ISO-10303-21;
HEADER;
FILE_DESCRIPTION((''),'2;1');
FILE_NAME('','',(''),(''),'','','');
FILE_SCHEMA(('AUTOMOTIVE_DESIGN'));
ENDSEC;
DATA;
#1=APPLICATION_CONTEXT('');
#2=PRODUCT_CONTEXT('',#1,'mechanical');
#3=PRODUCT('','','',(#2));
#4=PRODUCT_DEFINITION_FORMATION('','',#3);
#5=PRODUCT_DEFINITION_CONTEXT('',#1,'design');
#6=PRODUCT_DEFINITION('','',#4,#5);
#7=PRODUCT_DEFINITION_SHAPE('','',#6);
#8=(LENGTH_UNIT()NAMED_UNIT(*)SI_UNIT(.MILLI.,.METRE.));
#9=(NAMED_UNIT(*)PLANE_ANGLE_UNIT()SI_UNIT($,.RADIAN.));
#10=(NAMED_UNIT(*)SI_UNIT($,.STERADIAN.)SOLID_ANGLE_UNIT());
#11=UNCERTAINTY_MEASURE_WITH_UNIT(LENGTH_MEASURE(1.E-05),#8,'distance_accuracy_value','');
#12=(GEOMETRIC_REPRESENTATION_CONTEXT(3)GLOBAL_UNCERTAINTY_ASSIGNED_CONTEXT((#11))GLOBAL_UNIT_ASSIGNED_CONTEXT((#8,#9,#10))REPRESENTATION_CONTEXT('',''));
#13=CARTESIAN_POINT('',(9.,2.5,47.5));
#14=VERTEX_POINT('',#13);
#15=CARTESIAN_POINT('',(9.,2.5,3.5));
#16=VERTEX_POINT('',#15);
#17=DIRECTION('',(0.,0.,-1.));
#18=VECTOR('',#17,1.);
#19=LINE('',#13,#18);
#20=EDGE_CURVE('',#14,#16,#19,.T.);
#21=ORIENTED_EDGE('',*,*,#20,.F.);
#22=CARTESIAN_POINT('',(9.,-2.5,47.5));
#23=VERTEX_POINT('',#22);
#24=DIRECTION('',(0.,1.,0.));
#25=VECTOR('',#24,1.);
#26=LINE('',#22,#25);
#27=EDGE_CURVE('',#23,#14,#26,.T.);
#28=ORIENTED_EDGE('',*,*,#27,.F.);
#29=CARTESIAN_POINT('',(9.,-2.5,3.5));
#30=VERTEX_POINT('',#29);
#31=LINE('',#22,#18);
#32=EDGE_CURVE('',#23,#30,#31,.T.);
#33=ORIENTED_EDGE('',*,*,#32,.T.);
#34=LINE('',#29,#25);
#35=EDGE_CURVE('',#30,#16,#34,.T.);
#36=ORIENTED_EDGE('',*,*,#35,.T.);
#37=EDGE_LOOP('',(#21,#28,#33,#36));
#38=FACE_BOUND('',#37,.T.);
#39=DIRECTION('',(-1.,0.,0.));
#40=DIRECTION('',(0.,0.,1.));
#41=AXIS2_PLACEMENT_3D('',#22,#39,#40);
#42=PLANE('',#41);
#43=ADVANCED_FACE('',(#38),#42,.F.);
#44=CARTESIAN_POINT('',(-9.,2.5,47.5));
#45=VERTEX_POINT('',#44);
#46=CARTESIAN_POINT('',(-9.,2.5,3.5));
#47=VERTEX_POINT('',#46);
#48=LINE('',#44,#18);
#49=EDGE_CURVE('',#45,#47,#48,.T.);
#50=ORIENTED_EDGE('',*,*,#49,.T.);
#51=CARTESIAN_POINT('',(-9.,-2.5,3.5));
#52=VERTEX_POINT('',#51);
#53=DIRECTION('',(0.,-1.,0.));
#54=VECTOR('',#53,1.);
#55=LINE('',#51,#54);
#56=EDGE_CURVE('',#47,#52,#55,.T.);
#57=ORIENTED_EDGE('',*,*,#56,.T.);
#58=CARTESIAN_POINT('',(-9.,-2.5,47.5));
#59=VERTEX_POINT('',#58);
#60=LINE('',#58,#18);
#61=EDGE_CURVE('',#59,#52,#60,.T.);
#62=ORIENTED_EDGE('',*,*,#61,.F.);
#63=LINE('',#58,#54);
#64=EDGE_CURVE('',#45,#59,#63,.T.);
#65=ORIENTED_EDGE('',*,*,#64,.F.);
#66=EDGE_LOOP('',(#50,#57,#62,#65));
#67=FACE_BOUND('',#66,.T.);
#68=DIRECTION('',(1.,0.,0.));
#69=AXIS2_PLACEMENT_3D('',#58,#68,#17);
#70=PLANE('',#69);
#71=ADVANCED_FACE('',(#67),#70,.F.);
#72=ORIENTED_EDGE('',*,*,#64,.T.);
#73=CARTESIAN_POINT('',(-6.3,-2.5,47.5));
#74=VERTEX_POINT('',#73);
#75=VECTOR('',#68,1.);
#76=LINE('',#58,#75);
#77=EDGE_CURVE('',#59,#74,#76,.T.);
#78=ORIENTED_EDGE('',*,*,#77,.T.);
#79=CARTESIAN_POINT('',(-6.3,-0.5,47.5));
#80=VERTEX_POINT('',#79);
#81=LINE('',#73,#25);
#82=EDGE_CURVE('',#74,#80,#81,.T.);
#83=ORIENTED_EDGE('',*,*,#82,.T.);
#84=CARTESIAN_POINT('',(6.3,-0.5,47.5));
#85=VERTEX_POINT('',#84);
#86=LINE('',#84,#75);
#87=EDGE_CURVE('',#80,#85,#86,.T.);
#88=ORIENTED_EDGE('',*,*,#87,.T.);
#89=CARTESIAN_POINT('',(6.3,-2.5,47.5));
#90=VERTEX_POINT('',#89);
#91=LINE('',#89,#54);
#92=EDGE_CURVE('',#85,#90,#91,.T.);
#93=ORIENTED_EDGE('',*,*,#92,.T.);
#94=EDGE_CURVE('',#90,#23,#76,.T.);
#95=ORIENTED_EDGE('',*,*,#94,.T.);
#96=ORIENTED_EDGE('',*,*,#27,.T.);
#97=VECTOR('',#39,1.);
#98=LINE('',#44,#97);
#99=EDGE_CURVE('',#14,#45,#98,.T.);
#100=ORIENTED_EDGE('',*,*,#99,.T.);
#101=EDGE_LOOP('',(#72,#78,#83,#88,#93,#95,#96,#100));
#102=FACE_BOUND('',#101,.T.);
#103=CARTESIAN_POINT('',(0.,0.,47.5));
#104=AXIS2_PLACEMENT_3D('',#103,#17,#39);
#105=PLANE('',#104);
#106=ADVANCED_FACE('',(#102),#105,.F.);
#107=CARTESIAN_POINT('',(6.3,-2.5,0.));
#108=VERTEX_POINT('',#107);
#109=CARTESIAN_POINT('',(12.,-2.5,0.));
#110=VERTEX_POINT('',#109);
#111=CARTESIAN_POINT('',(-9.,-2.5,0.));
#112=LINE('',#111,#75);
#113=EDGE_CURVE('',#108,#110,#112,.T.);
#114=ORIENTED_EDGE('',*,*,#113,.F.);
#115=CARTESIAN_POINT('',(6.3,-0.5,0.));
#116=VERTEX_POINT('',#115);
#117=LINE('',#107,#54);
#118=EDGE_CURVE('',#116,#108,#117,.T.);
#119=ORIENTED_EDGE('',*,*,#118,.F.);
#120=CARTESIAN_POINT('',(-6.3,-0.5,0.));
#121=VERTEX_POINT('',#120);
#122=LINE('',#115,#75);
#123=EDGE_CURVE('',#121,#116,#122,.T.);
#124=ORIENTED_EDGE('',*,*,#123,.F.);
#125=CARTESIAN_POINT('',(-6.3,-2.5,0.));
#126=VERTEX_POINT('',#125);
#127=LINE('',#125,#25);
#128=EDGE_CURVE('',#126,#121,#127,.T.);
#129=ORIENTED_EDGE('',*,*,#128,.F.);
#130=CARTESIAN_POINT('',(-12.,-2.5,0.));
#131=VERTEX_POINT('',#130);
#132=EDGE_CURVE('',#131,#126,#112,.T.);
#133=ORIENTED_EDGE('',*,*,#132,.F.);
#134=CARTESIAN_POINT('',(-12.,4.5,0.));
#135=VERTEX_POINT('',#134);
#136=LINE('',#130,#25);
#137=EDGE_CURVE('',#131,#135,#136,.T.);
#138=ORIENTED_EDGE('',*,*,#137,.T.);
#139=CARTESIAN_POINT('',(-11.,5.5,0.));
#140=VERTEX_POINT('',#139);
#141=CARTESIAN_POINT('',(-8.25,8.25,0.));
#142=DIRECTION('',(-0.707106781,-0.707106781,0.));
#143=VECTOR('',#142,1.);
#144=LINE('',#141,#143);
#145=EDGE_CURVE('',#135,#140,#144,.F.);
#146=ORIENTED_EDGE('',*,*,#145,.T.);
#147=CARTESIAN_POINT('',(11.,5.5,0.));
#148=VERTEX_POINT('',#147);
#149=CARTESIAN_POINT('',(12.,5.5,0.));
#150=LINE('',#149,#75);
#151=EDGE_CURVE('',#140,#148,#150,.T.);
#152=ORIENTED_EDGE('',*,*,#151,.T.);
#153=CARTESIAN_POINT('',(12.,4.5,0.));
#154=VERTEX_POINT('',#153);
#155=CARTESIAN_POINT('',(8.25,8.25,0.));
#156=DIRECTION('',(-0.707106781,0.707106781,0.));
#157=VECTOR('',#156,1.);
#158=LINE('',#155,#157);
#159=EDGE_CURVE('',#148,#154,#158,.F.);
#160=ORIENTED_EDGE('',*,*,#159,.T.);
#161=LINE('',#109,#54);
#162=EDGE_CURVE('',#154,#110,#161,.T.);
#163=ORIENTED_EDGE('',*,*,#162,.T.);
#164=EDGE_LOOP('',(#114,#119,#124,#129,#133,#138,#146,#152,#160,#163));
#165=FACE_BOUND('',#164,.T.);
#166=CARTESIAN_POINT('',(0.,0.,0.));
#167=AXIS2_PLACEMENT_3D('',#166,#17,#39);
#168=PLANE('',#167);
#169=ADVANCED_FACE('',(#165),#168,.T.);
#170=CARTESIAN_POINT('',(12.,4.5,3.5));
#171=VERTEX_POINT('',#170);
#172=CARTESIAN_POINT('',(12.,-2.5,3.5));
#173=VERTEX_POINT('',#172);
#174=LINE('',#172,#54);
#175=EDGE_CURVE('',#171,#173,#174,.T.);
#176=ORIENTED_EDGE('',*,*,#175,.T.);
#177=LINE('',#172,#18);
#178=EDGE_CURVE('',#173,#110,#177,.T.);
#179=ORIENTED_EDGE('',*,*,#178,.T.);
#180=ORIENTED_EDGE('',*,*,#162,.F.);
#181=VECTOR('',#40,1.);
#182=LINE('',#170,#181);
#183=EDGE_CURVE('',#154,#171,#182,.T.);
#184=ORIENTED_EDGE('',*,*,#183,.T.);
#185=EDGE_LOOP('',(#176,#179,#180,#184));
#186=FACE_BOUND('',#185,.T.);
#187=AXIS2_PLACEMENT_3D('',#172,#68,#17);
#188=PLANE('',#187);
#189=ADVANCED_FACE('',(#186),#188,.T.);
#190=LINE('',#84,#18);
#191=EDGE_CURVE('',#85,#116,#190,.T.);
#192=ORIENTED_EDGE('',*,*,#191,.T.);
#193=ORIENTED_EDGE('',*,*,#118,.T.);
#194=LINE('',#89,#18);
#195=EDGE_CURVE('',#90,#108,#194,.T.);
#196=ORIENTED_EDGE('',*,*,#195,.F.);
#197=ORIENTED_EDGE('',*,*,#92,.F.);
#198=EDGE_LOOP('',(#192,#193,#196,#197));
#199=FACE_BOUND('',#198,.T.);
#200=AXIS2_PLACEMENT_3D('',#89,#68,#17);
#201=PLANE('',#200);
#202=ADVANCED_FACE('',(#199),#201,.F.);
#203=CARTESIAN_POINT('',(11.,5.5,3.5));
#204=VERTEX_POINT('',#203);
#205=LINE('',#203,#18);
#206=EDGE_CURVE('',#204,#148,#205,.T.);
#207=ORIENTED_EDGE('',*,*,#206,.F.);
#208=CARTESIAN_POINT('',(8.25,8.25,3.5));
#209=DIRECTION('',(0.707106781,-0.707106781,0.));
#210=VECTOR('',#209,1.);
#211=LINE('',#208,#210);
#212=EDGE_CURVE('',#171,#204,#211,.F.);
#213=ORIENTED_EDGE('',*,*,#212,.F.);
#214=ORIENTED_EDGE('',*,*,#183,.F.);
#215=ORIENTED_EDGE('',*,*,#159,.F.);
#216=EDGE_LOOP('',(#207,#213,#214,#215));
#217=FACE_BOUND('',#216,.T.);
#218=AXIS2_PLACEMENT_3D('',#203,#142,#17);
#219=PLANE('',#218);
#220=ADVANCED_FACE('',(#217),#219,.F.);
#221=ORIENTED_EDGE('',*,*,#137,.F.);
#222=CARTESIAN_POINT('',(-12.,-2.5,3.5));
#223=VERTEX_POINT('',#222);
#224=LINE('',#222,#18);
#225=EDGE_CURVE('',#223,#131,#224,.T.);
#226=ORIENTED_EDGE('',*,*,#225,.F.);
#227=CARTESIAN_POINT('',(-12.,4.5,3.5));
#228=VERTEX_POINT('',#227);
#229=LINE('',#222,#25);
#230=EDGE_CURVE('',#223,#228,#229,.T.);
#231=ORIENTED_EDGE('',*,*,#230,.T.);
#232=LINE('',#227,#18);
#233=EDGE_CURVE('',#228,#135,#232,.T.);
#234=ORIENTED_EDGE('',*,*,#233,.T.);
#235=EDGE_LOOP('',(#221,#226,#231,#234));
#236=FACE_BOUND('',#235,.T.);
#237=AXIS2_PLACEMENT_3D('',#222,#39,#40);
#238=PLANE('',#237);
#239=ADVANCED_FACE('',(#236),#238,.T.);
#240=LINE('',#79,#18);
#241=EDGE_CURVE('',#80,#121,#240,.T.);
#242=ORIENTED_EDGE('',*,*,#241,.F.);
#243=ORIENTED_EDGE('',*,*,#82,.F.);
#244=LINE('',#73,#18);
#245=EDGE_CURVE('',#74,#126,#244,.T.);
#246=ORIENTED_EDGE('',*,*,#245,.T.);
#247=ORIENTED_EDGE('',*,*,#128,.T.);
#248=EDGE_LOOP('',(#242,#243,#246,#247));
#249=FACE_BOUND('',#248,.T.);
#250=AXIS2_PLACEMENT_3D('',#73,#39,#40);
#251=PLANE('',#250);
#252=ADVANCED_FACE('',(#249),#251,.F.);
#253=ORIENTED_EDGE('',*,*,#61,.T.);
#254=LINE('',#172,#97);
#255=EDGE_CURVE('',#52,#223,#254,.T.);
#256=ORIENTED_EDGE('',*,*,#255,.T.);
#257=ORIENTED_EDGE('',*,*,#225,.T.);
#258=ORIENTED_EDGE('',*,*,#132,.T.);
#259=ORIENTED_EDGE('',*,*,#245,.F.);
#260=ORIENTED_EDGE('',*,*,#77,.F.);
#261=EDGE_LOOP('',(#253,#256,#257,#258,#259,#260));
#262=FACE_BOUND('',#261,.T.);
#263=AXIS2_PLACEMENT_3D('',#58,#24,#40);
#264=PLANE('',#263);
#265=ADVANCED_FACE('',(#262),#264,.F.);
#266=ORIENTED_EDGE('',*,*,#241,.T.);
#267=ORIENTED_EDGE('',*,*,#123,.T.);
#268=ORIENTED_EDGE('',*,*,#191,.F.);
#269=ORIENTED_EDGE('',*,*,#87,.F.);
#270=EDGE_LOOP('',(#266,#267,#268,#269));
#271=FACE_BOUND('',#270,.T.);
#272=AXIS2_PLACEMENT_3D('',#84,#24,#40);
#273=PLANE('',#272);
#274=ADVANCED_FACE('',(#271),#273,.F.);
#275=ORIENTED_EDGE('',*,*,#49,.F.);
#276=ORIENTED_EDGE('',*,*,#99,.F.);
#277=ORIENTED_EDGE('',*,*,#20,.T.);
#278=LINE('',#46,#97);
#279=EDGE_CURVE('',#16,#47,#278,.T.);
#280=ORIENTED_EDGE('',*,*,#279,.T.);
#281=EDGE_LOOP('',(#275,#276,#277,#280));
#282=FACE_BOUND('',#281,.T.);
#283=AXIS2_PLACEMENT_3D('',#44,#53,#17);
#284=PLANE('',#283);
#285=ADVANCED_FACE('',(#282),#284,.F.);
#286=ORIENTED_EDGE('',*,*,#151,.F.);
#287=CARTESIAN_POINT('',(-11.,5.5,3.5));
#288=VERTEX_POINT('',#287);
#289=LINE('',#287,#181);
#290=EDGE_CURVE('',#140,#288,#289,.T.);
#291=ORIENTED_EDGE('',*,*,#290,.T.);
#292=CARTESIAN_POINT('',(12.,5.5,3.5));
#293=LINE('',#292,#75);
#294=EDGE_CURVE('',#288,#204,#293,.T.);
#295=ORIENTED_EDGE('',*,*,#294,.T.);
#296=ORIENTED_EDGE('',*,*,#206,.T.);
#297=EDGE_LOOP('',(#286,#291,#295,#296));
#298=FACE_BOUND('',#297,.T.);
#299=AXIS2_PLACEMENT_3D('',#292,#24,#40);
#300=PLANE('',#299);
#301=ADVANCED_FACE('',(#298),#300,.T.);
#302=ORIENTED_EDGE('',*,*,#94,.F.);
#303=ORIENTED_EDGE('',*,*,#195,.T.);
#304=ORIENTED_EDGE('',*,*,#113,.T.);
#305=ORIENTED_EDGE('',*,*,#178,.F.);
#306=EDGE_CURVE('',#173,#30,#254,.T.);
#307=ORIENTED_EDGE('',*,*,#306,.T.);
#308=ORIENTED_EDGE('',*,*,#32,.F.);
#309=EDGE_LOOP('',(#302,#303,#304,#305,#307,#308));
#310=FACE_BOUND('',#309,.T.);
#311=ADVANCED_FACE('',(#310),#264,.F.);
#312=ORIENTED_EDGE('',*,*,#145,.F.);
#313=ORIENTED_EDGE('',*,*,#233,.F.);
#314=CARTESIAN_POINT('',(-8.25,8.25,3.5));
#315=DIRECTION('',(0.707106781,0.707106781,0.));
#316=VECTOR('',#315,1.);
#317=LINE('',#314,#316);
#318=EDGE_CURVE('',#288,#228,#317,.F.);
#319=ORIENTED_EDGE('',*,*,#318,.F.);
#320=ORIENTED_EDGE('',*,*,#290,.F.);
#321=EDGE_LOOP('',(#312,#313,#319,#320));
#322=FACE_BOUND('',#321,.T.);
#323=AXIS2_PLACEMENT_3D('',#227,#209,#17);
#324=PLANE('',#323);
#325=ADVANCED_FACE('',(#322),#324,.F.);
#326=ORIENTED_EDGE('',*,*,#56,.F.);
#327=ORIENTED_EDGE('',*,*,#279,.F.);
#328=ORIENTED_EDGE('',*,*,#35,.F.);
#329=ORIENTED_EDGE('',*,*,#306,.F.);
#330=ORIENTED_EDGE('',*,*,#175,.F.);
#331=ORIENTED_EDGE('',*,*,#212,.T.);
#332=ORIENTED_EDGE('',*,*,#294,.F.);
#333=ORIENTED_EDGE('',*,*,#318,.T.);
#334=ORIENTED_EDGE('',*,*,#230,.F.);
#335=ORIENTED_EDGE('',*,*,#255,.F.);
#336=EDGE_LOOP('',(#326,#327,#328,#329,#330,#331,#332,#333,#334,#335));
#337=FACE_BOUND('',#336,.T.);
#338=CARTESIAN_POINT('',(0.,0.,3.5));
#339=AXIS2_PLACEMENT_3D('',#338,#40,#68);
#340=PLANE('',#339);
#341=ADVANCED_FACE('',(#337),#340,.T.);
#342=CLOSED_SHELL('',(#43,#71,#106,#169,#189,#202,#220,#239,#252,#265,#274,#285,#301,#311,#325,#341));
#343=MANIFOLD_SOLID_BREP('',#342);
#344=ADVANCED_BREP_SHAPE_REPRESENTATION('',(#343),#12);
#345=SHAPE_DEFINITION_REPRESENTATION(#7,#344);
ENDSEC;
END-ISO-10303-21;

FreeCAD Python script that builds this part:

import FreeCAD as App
import Part
import Sketcher

V = App.Vector
Q = App.Units.Quantity


def edges_at(feature, points):
    """Names of the edges that pass closest to the given points."""
    edges = feature.Shape.Edges
    near = lambda p: min(range(len(edges)), key=lambda i: edges[i].distToShape(Part.Vertex(*p))[0])
    return sorted({f"Edge{near(p) + 1}" for p in points})

doc = App.newDocument("Part")
params = doc.addObject("Spreadsheet::Sheet", "Params")
for row, (alias, value) in enumerate([
    ("sketch1_width", "18 mm"),
    ("sketch1_height", "5 mm"),
    ("pad1_length", "47.5 mm"),
    ("sketch2_width", "24 mm"),
    ("sketch2_height", "8 mm"),
    ("pad2_length", "3.5 mm"),
    ("sketch3_height", "2 mm"),
    ("sketch3_width", "12.6 mm"),
    ("chamfer_size", "1 mm"),
], start=1):
    params.set(f"A{row}", alias)
    params.set(f"B{row}", "=" + value)
    params.setAlias(f"B{row}", alias)

body = doc.addObject("PartDesign::Body", "Body")

# Sketch on XY plane
sketch1 = body.newObject("Sketcher::SketchObject", "Sketch")
sketch1.AttachmentSupport = (doc.getObject("XY_Plane"), [""])
sketch1.MapMode = "FlatFace"
sketch1.addGeometry(Part.LineSegment(V(-9, 2.5, 0), V(-9, -2.5, 0)), False)
sketch1.addGeometry(Part.LineSegment(V(-9, -2.5, 0), V(9, -2.5, 0)), False)
sketch1.addGeometry(Part.LineSegment(V(9, -2.5, 0), V(9, 2.5, 0)), False)
sketch1.addGeometry(Part.LineSegment(V(9, 2.5, 0), V(-9, 2.5, 0)), False)
sketch1.addConstraint(Sketcher.Constraint("Coincident", 0, 2, 1, 1))
sketch1.addConstraint(Sketcher.Constraint("Coincident", 1, 2, 2, 1))
sketch1.addConstraint(Sketcher.Constraint("Coincident", 2, 2, 3, 1))
sketch1.addConstraint(Sketcher.Constraint("Coincident", 3, 2, 0, 1))
sketch1.addConstraint(Sketcher.Constraint("Vertical", 0))
sketch1.addConstraint(Sketcher.Constraint("Horizontal", 1))
sketch1.addConstraint(Sketcher.Constraint("Vertical", 2))
sketch1.addConstraint(Sketcher.Constraint("Horizontal", 3))
sketch1.addConstraint(Sketcher.Constraint("Symmetric", 0, 2, 2, 2, -1, 1))
sketch1.addConstraint(Sketcher.Constraint("DistanceX", 1, 1, 1, 2, Q("18 mm")))
sketch1.addConstraint(Sketcher.Constraint("DistanceY", 0, 2, 0, 1, Q("5 mm")))
sketch1.setExpression("Constraints[9]", "Params.sketch1_width")
sketch1.setExpression("Constraints[10]", "Params.sketch1_height")
pad1 = body.newObject("PartDesign::Pad", "Pad")
pad1.Profile = sketch1
pad1.setExpression("Length", "Params.pad1_length")

# Sketch on XY plane
sketch2 = body.newObject("Sketcher::SketchObject", "Sketch001")
sketch2.AttachmentSupport = (doc.getObject("XY_Plane"), [""])
sketch2.MapMode = "FlatFace"
sketch2.addGeometry(Part.LineSegment(V(12, 5.5, 0), V(12, -2.5, 0)), False)
sketch2.addGeometry(Part.LineSegment(V(12, -2.5, 0), V(-12, -2.5, 0)), False)
sketch2.addGeometry(Part.LineSegment(V(-12, -2.5, 0), V(-12, 5.5, 0)), False)
sketch2.addGeometry(Part.LineSegment(V(-12, 5.5, 0), V(12, 5.5, 0)), False)
sketch2.addConstraint(Sketcher.Constraint("Coincident", 0, 2, 1, 1))
sketch2.addConstraint(Sketcher.Constraint("Coincident", 1, 2, 2, 1))
sketch2.addConstraint(Sketcher.Constraint("Coincident", 2, 2, 3, 1))
sketch2.addConstraint(Sketcher.Constraint("Coincident", 3, 2, 0, 1))
sketch2.addConstraint(Sketcher.Constraint("Vertical", 0))
sketch2.addConstraint(Sketcher.Constraint("Horizontal", 1))
sketch2.addConstraint(Sketcher.Constraint("Vertical", 2))
sketch2.addConstraint(Sketcher.Constraint("Horizontal", 3))
sketch2.addConstraint(Sketcher.Constraint("DistanceX", 1, 2, 1, 1, Q("24 mm")))
sketch2.addConstraint(Sketcher.Constraint("DistanceY", 0, 2, 0, 1, Q("8 mm")))
sketch2.addConstraint(Sketcher.Constraint("DistanceX", -1, 1, 0, 2, Q("12 mm")))
sketch2.addConstraint(Sketcher.Constraint("DistanceY", 0, 2, -1, 1, Q("2.5 mm")))
sketch2.setExpression("Constraints[8]", "Params.sketch2_width")
sketch2.setExpression("Constraints[9]", "Params.sketch2_height")
pad2 = body.newObject("PartDesign::Pad", "Pad001")
pad2.Profile = sketch2
pad2.setExpression("Length", "Params.pad2_length")

# Sketch on XY plane
sketch3 = body.newObject("Sketcher::SketchObject", "Sketch002")
sketch3.AttachmentSupport = (doc.getObject("XY_Plane"), [""])
sketch3.MapMode = "FlatFace"
sketch3.addGeometry(Part.LineSegment(V(6.3, -0.5, 0), V(6.3, -2.5, 0)), False)
sketch3.addGeometry(Part.LineSegment(V(6.3, -2.5, 0), V(-6.3, -2.5, 0)), False)
sketch3.addGeometry(Part.LineSegment(V(-6.3, -2.5, 0), V(-6.3, -0.5, 0)), False)
sketch3.addGeometry(Part.LineSegment(V(-6.3, -0.5, 0), V(6.3, -0.5, 0)), False)
sketch3.addConstraint(Sketcher.Constraint("Coincident", 0, 2, 1, 1))
sketch3.addConstraint(Sketcher.Constraint("Coincident", 1, 2, 2, 1))
sketch3.addConstraint(Sketcher.Constraint("Coincident", 2, 2, 3, 1))
sketch3.addConstraint(Sketcher.Constraint("Coincident", 3, 2, 0, 1))
sketch3.addConstraint(Sketcher.Constraint("Vertical", 0))
sketch3.addConstraint(Sketcher.Constraint("Horizontal", 1))
sketch3.addConstraint(Sketcher.Constraint("Vertical", 2))
sketch3.addConstraint(Sketcher.Constraint("Horizontal", 3))
sketch3.addConstraint(Sketcher.Constraint("DistanceY", 0, 2, 0, 1, Q("2 mm")))
sketch3.addConstraint(Sketcher.Constraint("DistanceX", 1, 2, 1, 1, Q("12.6 mm")))
sketch3.addConstraint(Sketcher.Constraint("DistanceX", -1, 1, 0, 2, Q("6.3 mm")))
sketch3.addConstraint(Sketcher.Constraint("DistanceY", 0, 2, -1, 1, Q("2.5 mm")))
sketch3.setExpression("Constraints[8]", "Params.sketch3_height")
sketch3.setExpression("Constraints[9]", "Params.sketch3_width")
pocket1 = body.newObject("PartDesign::Pocket", "Pocket")
pocket1.Profile = sketch3
pocket1.Type = "ThroughAll"
pocket1.Reversed = True
doc.recompute()

chamfer = body.newObject("PartDesign::Chamfer", "Chamfer")
chamfer.Base = (pocket1, edges_at(pocket1, [(12, 5.5, 1.75), (-12, 5.5, 1.75)]))
chamfer.setExpression("Size", "Params.chamfer_size")

doc.recompute()
